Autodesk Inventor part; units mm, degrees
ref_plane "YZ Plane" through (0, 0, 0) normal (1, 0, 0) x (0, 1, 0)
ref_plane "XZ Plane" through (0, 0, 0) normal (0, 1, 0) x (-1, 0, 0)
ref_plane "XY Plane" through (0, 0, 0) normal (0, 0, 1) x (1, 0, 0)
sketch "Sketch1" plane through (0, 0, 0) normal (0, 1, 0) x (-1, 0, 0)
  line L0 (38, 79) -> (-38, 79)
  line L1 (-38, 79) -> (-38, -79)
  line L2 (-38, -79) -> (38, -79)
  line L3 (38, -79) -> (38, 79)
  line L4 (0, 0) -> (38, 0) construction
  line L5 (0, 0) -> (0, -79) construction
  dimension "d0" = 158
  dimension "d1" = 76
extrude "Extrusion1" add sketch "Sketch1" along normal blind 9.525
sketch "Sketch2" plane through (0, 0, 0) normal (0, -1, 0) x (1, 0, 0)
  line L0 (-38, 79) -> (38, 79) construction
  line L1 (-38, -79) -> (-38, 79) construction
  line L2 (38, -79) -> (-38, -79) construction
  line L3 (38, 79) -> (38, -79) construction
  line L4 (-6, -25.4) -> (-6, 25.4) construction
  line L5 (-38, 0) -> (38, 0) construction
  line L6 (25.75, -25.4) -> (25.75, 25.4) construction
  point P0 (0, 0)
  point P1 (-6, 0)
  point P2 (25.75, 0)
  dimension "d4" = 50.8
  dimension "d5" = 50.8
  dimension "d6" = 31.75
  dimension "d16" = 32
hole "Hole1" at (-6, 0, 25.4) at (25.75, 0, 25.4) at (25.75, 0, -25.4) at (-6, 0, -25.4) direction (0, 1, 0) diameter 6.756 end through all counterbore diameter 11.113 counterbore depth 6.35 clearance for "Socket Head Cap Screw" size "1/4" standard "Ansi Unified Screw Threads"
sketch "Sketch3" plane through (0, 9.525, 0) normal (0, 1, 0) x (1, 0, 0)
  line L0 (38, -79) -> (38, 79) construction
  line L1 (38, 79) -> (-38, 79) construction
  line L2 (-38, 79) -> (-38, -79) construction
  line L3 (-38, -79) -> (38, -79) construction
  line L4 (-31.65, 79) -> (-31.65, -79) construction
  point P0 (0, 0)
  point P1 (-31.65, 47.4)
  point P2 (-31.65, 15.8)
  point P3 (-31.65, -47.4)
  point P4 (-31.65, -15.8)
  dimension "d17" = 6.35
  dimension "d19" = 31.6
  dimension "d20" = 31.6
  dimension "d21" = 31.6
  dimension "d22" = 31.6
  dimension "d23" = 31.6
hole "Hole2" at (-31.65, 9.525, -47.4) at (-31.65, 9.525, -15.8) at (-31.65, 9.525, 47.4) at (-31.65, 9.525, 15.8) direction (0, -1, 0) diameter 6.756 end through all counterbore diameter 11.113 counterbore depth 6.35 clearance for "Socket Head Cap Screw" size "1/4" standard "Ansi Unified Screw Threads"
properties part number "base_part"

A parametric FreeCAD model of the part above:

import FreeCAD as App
import Part
import Sketcher

V = App.Vector
Q = App.Units.Quantity


def add_polygon(sketch, points):
    """Adds a closed chain of lines whose ends are joined by coincident constraints."""
    first, n = sketch.GeometryCount, len(points)
    for a, b in zip(points, points[1:] + points[:1]):
        sketch.addGeometry(Part.LineSegment(App.Vector(*a, 0), App.Vector(*b, 0)), False)
    for i in range(n):
        sketch.addConstraint(Sketcher.Constraint("Coincident", first + i, 2, first + (i + 1) % n, 1))

doc = App.newDocument("Part")
body = doc.addObject("PartDesign::Body", "Body")

# Sketch on XZ plane
sketch1 = body.newObject("Sketcher::SketchObject", "Sketch")
sketch1.AttachmentSupport = (doc.getObject("XZ_Plane"), [""])
sketch1.MapMode = "FlatFace"
add_polygon(sketch1, [(-38, -79), (-38, 79), (38, 79), (38, -79)])  # lines 0-3
sketch1.addConstraint(Sketcher.Constraint("Vertical", 0))
sketch1.addConstraint(Sketcher.Constraint("Horizontal", 1))
sketch1.addConstraint(Sketcher.Constraint("Vertical", 2))
sketch1.addConstraint(Sketcher.Constraint("Horizontal", 3))
sketch1.addConstraint(Sketcher.Constraint("Symmetric", 0, 2, 2, 2, -1, 1))
sketch1.addConstraint(Sketcher.Constraint("DistanceX", 1, 1, 1, 2, Q("76 mm")))
sketch1.addConstraint(Sketcher.Constraint("DistanceY", 0, 1, 0, 2, Q("158 mm")))
pad1 = body.newObject("PartDesign::Pad", "Pad")
pad1.Profile = sketch1
pad1.Length = 9.525
pad1.Reversed = True

# Sketch on XZ plane
sketch2 = body.newObject("Sketcher::SketchObject", "Sketch001")
sketch2.AttachmentSupport = (doc.getObject("XZ_Plane"), [""])
sketch2.MapMode = "FlatFace"
sketch2.addGeometry(Part.Circle(V(-6, 25.4, 0), V(0, 0, 1), 3.4), False)
sketch2.addGeometry(Part.Circle(V(25.8, 25.4, 0), V(0, 0, 1), 3.4), False)
sketch2.addGeometry(Part.Circle(V(25.8, -25.4, 0), V(0, 0, 1), 3.4), False)
sketch2.addGeometry(Part.Circle(V(-6, -25.4, 0), V(0, 0, 1), 3.4), False)
sketch2.addConstraint(Sketcher.Constraint("Equal", 0, 1))
sketch2.addConstraint(Sketcher.Constraint("Equal", 1, 2))
sketch2.addConstraint(Sketcher.Constraint("Equal", 2, 3))
sketch2.addConstraint(Sketcher.Constraint("Symmetric", 1, 3, 2, 3, -1))
sketch2.addConstraint(Sketcher.Constraint("Symmetric", 0, 3, 3, 3, -1))
sketch2.addConstraint(Sketcher.Constraint("Horizontal", 0, 3, 1, 3))
sketch2.addConstraint(Sketcher.Constraint("Diameter", 0, Q("6.756 mm")))
sketch2.addConstraint(Sketcher.Constraint("DistanceX", 0, 3, -1, 1, Q("6 mm")))
sketch2.addConstraint(Sketcher.Constraint("DistanceY", -1, 1, 0, 3, Q("25.4 mm")))
sketch2.addConstraint(Sketcher.Constraint("DistanceX", -1, 1, 1, 3, Q("25.75 mm")))
doc.recompute()
hole = body.newObject("PartDesign::Hole", "Hole")
hole.Profile = sketch2
hole.ThreadType = "None"
hole.Diameter = 6.756
hole.DepthType = "ThroughAll"
hole.HoleCutType = "Counterbore"
hole.HoleCutDiameter = 11.113
hole.HoleCutDepth = 6.35

# Sketch on XZ plane
sketch3 = body.newObject("Sketcher::SketchObject", "Sketch002")
sketch3.AttachmentSupport = (doc.getObject("XZ_Plane"), [""])
sketch3.MapMode = "FlatFace"
sketch3.AttachmentOffset = App.Placement(V(0, 0, -9.525), App.Rotation())
sketch3.addGeometry(Part.Circle(V(-31.6, -47.4, 0), V(0, 0, 1), 3.4), False)
sketch3.addGeometry(Part.Circle(V(-31.6, -15.8, 0), V(0, 0, 1), 3.4), False)
sketch3.addGeometry(Part.Circle(V(-31.6, 47.4, 0), V(0, 0, 1), 3.4), False)
sketch3.addGeometry(Part.Circle(V(-31.6, 15.8, 0), V(0, 0, 1), 3.4), False)
sketch3.addConstraint(Sketcher.Constraint("Equal", 0, 1))
sketch3.addConstraint(Sketcher.Constraint("Equal", 1, 2))
sketch3.addConstraint(Sketcher.Constraint("Equal", 2, 3))
sketch3.addConstraint(Sketcher.Constraint("Symmetric", 0, 3, 2, 3, -1))
sketch3.addConstraint(Sketcher.Constraint("Symmetric", 1, 3, 3, 3, -1))
sketch3.addConstraint(Sketcher.Constraint("Vertical", 0, 3, 1, 3))
sketch3.addConstraint(Sketcher.Constraint("Diameter", 0, Q("6.756 mm")))
sketch3.addConstraint(Sketcher.Constraint("DistanceY", 0, 3, -1, 1, Q("47.4 mm")))
sketch3.addConstraint(Sketcher.Constraint("DistanceY", 1, 3, -1, 1, Q("15.8 mm")))
sketch3.addConstraint(Sketcher.Constraint("DistanceX", 0, 3, -1, 1, Q("31.65 mm")))
doc.recompute()
hole2 = body.newObject("PartDesign::Hole", "Hole001")
hole2.Profile = sketch3
hole2.ThreadType = "None"
hole2.Diameter = 6.756
hole2.DepthType = "ThroughAll"
hole2.HoleCutType = "Counterbore"
hole2.HoleCutDiameter = 11.113
hole2.HoleCutDepth = 6.35
hole2.Reversed = True

doc.recompute()
